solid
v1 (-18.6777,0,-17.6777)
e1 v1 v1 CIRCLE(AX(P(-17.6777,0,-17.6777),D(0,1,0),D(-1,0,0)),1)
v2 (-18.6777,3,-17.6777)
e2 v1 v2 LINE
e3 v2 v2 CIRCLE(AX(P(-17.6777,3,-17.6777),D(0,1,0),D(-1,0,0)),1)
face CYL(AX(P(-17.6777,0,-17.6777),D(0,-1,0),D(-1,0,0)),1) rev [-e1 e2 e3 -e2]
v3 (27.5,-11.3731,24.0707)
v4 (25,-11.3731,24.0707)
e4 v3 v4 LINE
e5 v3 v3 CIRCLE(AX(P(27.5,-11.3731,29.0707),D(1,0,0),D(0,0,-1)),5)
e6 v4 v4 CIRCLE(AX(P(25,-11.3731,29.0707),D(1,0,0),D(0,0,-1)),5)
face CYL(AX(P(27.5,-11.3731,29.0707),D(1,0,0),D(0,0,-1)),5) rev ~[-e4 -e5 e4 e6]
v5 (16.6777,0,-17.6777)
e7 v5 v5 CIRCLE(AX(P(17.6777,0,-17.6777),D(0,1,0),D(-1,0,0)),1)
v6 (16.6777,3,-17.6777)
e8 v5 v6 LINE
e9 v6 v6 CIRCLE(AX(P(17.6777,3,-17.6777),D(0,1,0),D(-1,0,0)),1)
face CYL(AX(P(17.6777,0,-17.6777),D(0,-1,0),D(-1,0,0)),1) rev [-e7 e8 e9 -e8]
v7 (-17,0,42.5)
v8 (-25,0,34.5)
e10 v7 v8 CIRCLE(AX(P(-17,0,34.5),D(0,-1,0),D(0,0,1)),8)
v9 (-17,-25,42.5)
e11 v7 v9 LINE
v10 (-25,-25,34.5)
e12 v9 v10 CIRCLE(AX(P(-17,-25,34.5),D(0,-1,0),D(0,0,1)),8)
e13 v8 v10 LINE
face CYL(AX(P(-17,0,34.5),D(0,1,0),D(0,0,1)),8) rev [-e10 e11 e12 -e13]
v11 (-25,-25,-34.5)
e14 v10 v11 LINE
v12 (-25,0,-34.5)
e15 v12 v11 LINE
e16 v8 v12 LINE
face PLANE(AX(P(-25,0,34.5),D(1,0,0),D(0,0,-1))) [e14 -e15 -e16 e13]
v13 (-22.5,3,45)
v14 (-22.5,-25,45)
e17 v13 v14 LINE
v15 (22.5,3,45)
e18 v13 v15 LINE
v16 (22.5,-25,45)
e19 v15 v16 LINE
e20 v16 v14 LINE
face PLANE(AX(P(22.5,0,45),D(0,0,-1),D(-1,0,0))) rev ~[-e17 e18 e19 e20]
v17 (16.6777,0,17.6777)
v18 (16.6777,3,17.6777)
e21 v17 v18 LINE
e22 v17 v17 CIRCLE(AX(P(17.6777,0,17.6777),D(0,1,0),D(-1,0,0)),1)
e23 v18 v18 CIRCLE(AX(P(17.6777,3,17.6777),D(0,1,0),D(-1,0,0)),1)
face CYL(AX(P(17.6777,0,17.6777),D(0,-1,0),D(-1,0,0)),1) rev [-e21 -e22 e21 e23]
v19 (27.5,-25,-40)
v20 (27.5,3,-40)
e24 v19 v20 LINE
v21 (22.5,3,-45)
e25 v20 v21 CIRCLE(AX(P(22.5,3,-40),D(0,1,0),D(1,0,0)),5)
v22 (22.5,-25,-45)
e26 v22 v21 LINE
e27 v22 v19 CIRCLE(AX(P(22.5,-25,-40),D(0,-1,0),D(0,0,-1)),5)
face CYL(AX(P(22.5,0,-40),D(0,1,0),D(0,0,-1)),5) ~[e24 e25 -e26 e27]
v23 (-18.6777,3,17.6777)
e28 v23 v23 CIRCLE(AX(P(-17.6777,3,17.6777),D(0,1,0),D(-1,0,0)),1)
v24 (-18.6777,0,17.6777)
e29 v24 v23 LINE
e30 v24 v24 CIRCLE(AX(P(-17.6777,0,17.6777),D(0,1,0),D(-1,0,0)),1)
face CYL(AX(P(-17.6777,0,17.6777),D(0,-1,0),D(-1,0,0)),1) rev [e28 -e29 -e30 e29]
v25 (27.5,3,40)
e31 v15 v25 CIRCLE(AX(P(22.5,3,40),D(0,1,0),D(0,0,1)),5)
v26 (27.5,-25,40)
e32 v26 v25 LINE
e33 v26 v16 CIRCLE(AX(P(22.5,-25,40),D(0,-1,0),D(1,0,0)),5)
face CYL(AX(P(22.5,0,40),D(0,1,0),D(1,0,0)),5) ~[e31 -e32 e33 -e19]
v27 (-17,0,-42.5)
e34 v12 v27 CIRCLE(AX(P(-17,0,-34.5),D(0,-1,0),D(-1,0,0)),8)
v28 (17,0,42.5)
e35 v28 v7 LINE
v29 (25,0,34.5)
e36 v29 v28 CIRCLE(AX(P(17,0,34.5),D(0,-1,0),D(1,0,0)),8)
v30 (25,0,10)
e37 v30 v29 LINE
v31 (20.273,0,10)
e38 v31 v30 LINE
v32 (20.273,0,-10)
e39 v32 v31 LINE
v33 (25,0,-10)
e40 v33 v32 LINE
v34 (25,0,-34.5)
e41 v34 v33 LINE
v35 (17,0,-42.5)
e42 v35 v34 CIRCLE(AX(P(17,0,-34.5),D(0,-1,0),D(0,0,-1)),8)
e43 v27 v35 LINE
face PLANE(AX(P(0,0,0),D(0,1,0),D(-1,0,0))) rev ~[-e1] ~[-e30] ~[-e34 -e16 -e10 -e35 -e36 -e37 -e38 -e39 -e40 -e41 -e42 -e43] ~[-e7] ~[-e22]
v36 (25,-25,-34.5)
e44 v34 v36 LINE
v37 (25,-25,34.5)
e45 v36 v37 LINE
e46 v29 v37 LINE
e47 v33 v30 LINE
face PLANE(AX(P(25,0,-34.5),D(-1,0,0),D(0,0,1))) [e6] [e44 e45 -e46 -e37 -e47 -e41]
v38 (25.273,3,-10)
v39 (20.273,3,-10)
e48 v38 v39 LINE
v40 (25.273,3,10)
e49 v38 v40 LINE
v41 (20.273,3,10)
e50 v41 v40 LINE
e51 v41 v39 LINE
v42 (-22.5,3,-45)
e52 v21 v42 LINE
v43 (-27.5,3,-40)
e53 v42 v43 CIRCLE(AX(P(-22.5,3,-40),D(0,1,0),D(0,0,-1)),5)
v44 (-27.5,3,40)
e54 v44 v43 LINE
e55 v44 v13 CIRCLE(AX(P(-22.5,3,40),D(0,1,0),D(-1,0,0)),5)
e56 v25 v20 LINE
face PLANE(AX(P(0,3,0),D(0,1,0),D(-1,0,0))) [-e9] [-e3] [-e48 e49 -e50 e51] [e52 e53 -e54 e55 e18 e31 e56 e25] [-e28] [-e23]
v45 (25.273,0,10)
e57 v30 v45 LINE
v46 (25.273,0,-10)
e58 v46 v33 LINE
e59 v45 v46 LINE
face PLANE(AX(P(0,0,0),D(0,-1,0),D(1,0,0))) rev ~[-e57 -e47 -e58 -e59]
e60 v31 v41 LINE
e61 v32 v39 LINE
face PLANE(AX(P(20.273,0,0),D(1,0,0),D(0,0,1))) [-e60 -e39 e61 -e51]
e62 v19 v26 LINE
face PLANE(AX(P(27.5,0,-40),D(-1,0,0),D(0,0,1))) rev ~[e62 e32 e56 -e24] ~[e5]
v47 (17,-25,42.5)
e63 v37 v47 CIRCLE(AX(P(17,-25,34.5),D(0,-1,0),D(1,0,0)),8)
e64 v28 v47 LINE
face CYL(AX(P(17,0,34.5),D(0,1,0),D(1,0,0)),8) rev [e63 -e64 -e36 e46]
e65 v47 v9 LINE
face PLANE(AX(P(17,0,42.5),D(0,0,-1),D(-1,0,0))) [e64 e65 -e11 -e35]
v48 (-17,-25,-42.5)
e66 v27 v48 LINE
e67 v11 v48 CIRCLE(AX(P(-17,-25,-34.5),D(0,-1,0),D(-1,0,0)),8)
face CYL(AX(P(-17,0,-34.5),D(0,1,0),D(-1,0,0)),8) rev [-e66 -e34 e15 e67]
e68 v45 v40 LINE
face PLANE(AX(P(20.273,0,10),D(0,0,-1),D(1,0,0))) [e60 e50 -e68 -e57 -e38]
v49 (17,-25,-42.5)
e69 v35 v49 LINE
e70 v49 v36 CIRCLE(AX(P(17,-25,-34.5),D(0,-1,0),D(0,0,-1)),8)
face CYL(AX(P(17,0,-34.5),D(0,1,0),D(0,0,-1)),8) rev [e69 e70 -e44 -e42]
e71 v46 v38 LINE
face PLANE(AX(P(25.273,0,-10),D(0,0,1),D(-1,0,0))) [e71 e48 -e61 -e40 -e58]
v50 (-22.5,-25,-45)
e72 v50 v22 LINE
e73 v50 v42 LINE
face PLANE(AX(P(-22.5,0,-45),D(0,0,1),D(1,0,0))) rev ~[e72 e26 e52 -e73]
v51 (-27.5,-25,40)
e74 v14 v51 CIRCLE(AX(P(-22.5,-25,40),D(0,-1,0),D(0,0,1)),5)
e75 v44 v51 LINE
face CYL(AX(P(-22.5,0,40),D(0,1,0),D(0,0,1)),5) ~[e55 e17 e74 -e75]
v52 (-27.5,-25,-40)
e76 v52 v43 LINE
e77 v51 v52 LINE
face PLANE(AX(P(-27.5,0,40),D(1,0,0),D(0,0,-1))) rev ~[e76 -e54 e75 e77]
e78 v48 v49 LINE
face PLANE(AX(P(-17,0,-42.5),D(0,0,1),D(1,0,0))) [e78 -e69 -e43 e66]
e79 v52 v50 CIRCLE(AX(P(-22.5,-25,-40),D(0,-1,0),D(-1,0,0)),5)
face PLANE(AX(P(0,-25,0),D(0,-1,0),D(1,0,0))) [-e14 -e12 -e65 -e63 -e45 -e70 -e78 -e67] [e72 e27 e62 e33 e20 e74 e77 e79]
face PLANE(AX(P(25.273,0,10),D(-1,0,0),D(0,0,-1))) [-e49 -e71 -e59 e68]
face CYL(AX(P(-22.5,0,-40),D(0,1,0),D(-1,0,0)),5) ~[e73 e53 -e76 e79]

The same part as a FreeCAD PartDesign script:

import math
import FreeCAD as App
import Part
import Sketcher
from FreeCAD import Vector
Q = App.Units.Quantity

doc = App.newDocument("Part")
body = doc.addObject("PartDesign::Body", "Body")

sketch1 = body.newObject("Sketcher::SketchObject", "Sketch")
sketch1.AttachmentSupport = (doc.getObject("XZ_Plane"), [""])
sketch1.MapMode = "FlatFace"
sketch1.addGeometry([
    Part.ArcOfCircle(Part.Circle(Vector(-22.5, 40, 0), Vector(0, 0, 1), 5), math.radians(90), math.radians(180)),
    Part.LineSegment(Vector(-22.5, 45, 0), Vector(22.5, 45, 0)),
    Part.ArcOfCircle(Part.Circle(Vector(22.5, 40, 0), Vector(0, 0, 1), 5), math.radians(0), math.radians(90)),
    Part.LineSegment(Vector(27.5, 40, 0), Vector(27.5, -40, 0)),
    Part.ArcOfCircle(Part.Circle(Vector(22.5, -40, 0), Vector(0, 0, 1), 5), math.radians(-90), math.radians(0)),
    Part.LineSegment(Vector(22.5, -45, 0), Vector(-22.5, -45, 0)),
    Part.ArcOfCircle(Part.Circle(Vector(-22.5, -40, 0), Vector(0, 0, 1), 5), math.radians(180), math.radians(270)),
    Part.LineSegment(Vector(-27.5, -40, 0), Vector(-27.5, 40, 0)),
    Part.LineSegment(Vector(20.3, 10, 0), Vector(20.3, -10, 0)),
    Part.LineSegment(Vector(20.3, -10, 0), Vector(25.3, -10, 0)),
    Part.LineSegment(Vector(25.3, -10, 0), Vector(25.3, 10, 0)),
    Part.LineSegment(Vector(25.3, 10, 0), Vector(20.3, 10, 0)),
    Part.Circle(Vector(17.7, 17.7, 0), Vector(0, 0, 1), 1),
    Part.Circle(Vector(-17.7, 17.7, 0), Vector(0, 0, 1), 1),
    Part.Circle(Vector(17.7, -17.7, 0), Vector(0, 0, 1), 1),
    Part.Circle(Vector(-17.7, -17.7, 0), Vector(0, 0, 1), 1),
], False)
sketch1.addConstraint([
    Sketcher.Constraint("Tangent", 0, 1, 1, 1),
    Sketcher.Constraint("Tangent", 1, 2, 2, 2),
    Sketcher.Constraint("Tangent", 2, 1, 3, 1),
    Sketcher.Constraint("Tangent", 3, 2, 4, 2),
    Sketcher.Constraint("Tangent", 4, 1, 5, 1),
    Sketcher.Constraint("Tangent", 5, 2, 6, 2),
    Sketcher.Constraint("Tangent", 6, 1, 7, 1),
    Sketcher.Constraint("Tangent", 7, 2, 0, 2),
    Sketcher.Constraint("Coincident", 8, 2, 9, 1),
    Sketcher.Constraint("Coincident", 9, 2, 10, 1),
    Sketcher.Constraint("Coincident", 10, 2, 11, 1),
    Sketcher.Constraint("Coincident", 11, 2, 8, 1),
    Sketcher.Constraint("Horizontal", 1),
    Sketcher.Constraint("Vertical", 3),
    Sketcher.Constraint("Horizontal", 5),
    Sketcher.Constraint("Vertical", 7),
    Sketcher.Constraint("Vertical", 8),
    Sketcher.Constraint("Horizontal", 9),
    Sketcher.Constraint("Vertical", 10),
    Sketcher.Constraint("Horizontal", 11),
    Sketcher.Constraint("Equal", 0, 2),
    Sketcher.Constraint("Equal", 2, 4),
    Sketcher.Constraint("Equal", 4, 6),
    Sketcher.Constraint("Equal", 12, 13),
    Sketcher.Constraint("Equal", 13, 14),
    Sketcher.Constraint("Equal", 14, 15),
    Sketcher.Constraint("Symmetric", 0, 3, 4, 3, -1, 1),
    Sketcher.Constraint("Symmetric", 13, 3, 14, 3, -1, 1),
    Sketcher.Constraint("Symmetric", 12, 3, 15, 3, -1, 1),
    Sketcher.Constraint("Symmetric", 12, 3, 13, 3, -2),
    Sketcher.Constraint("Diameter", 12, Q("2 mm")),
    Sketcher.Constraint("Radius", 0, Q("5 mm")),
    Sketcher.Constraint("DistanceX", 1, 1, 1, 2, Q("45 mm")),
    Sketcher.Constraint("DistanceX", 9, 1, 9, 2, Q("5 mm")),
    Sketcher.Constraint("DistanceY", 8, 2, 8, 1, Q("20 mm")),
    Sketcher.Constraint("DistanceY", -1, 1, 0, 1, Q("45 mm")),
    Sketcher.Constraint("DistanceY", 8, 2, -1, 1, Q("10 mm")),
    Sketcher.Constraint("DistanceX", -1, 1, 8, 2, Q("20.273 mm")),
    Sketcher.Constraint("DistanceX", -1, 1, 12, 3, Q("17.6777 mm")),
    Sketcher.Constraint("DistanceY", -1, 1, 12, 3, Q("17.6777 mm")),
])
pad1 = body.newObject("PartDesign::Pad", "Pad")
pad1.Profile = sketch1
pad1.Length = 3
pad1.Reversed = True

sketch2 = body.newObject("Sketcher::SketchObject", "Sketch001")
sketch2.AttachmentSupport = (doc.getObject("XZ_Plane"), [""])
sketch2.MapMode = "FlatFace"
sketch2.addGeometry([
    Part.ArcOfCircle(Part.Circle(Vector(22, 40, 0), Vector(0, 0, 1), 5), math.radians(0), math.radians(90)),
    Part.LineSegment(Vector(22, 45, 0), Vector(-22, 45, 0)),
    Part.ArcOfCircle(Part.Circle(Vector(-22, 40, 0), Vector(0, 0, 1), 5), math.radians(90), math.radians(180)),
    Part.LineSegment(Vector(-28, 40, 0), Vector(-28, -40, 0)),
    Part.ArcOfCircle(Part.Circle(Vector(-22, -40, 0), Vector(0, 0, 1), 5), math.radians(180), math.radians(270)),
    Part.LineSegment(Vector(-22, -45, 0), Vector(22, -45, 0)),
    Part.ArcOfCircle(Part.Circle(Vector(22, -40, 0), Vector(0, 0, 1), 5), math.radians(-90), math.radians(0)),
    Part.LineSegment(Vector(28, -40, 0), Vector(28, 40, 0)),
    Part.LineSegment(Vector(-17, 42, 0), Vector(17, 42, 0)),
    Part.ArcOfCircle(Part.Circle(Vector(17, 34, 0), Vector(0, 0, 1), 8), math.radians(0), math.radians(90)),
    Part.LineSegment(Vector(25, 34, 0), Vector(25, -34, 0)),
    Part.ArcOfCircle(Part.Circle(Vector(17, -34, 0), Vector(0, 0, 1), 8), math.radians(-90), math.radians(0)),
    Part.LineSegment(Vector(17, -42, 0), Vector(-17, -42, 0)),
    Part.ArcOfCircle(Part.Circle(Vector(-17, -34, 0), Vector(0, 0, 1), 8), math.radians(180), math.radians(270)),
    Part.LineSegment(Vector(-25, -34, 0), Vector(-25, 34, 0)),
    Part.ArcOfCircle(Part.Circle(Vector(-17, 34, 0), Vector(0, 0, 1), 8), math.radians(90), math.radians(180)),
], False)
sketch2.addConstraint([
    Sketcher.Constraint("Tangent", 0, 2, 1, 1),
    Sketcher.Constraint("Tangent", 1, 2, 2, 1),
    Sketcher.Constraint("Tangent", 2, 2, 3, 1),
    Sketcher.Constraint("Tangent", 3, 2, 4, 1),
    Sketcher.Constraint("Tangent", 4, 2, 5, 1),
    Sketcher.Constraint("Tangent", 5, 2, 6, 1),
    Sketcher.Constraint("Tangent", 6, 2, 7, 1),
    Sketcher.Constraint("Tangent", 7, 2, 0, 1),
    Sketcher.Constraint("Tangent", 8, 2, 9, 2),
    Sketcher.Constraint("Tangent", 9, 1, 10, 1),
    Sketcher.Constraint("Tangent", 10, 2, 11, 2),
    Sketcher.Constraint("Tangent", 11, 1, 12, 1),
    Sketcher.Constraint("Tangent", 12, 2, 13, 2),
    Sketcher.Constraint("Tangent", 13, 1, 14, 1),
    Sketcher.Constraint("Tangent", 14, 2, 15, 2),
    Sketcher.Constraint("Tangent", 15, 1, 8, 1),
    Sketcher.Constraint("Horizontal", 1),
    Sketcher.Constraint("Vertical", 3),
    Sketcher.Constraint("Horizontal", 5),
    Sketcher.Constraint("Vertical", 7),
    Sketcher.Constraint("Horizontal", 8),
    Sketcher.Constraint("Vertical", 10),
    Sketcher.Constraint("Horizontal", 12),
    Sketcher.Constraint("Vertical", 14),
    Sketcher.Constraint("Equal", 0, 2),
    Sketcher.Constraint("Equal", 2, 4),
    Sketcher.Constraint("Equal", 4, 6),
    Sketcher.Constraint("Equal", 9, 11),
    Sketcher.Constraint("Equal", 11, 13),
    Sketcher.Constraint("Equal", 13, 15),
    Sketcher.Constraint("Symmetric", 0, 3, 4, 3, -1, 1),
    Sketcher.Constraint("Symmetric", 9, 3, 13, 3, -1, 1),
    Sketcher.Constraint("Radius", 0, Q("5 mm")),
    Sketcher.Constraint("Radius", 9, Q("8 mm")),
    Sketcher.Constraint("DistanceX", 2, 2, 0, 3, Q("50 mm")),
    Sketcher.Constraint("DistanceX", 8, 1, 8, 2, Q("34 mm")),
    Sketcher.Constraint("DistanceY", 3, 2, 3, 1, Q("80 mm")),
    Sketcher.Constraint("DistanceY", 10, 2, 10, 1, Q("69 mm")),
])
pad2 = body.newObject("PartDesign::Pad", "Pad001")
pad2.Profile = sketch2
pad2.Length = 25

sketch3 = body.newObject("Sketcher::SketchObject", "Sketch002")
sketch3.AttachmentSupport = (doc.getObject("YZ_Plane"), [""])
sketch3.MapMode = "FlatFace"
sketch3.AttachmentOffset = App.Placement(Vector(0, 0, 27.5), App.Rotation())
sketch3.addGeometry(Part.Circle(Vector(-11, 29, 0), Vector(0, 0, 1), 5), False)
sketch3.addConstraint([
    Sketcher.Constraint("Diameter", 0, Q("10 mm")),
    Sketcher.Constraint("DistanceX", 0, 3, -1, 1, Q("11.373 mm")),
    Sketcher.Constraint("DistanceY", -1, 1, 0, 3, Q("29.0707 mm")),
])
pocket1 = body.newObject("PartDesign::Pocket", "Pocket")
pocket1.Profile = sketch3
pocket1.Length = 2.5

doc.recompute()
